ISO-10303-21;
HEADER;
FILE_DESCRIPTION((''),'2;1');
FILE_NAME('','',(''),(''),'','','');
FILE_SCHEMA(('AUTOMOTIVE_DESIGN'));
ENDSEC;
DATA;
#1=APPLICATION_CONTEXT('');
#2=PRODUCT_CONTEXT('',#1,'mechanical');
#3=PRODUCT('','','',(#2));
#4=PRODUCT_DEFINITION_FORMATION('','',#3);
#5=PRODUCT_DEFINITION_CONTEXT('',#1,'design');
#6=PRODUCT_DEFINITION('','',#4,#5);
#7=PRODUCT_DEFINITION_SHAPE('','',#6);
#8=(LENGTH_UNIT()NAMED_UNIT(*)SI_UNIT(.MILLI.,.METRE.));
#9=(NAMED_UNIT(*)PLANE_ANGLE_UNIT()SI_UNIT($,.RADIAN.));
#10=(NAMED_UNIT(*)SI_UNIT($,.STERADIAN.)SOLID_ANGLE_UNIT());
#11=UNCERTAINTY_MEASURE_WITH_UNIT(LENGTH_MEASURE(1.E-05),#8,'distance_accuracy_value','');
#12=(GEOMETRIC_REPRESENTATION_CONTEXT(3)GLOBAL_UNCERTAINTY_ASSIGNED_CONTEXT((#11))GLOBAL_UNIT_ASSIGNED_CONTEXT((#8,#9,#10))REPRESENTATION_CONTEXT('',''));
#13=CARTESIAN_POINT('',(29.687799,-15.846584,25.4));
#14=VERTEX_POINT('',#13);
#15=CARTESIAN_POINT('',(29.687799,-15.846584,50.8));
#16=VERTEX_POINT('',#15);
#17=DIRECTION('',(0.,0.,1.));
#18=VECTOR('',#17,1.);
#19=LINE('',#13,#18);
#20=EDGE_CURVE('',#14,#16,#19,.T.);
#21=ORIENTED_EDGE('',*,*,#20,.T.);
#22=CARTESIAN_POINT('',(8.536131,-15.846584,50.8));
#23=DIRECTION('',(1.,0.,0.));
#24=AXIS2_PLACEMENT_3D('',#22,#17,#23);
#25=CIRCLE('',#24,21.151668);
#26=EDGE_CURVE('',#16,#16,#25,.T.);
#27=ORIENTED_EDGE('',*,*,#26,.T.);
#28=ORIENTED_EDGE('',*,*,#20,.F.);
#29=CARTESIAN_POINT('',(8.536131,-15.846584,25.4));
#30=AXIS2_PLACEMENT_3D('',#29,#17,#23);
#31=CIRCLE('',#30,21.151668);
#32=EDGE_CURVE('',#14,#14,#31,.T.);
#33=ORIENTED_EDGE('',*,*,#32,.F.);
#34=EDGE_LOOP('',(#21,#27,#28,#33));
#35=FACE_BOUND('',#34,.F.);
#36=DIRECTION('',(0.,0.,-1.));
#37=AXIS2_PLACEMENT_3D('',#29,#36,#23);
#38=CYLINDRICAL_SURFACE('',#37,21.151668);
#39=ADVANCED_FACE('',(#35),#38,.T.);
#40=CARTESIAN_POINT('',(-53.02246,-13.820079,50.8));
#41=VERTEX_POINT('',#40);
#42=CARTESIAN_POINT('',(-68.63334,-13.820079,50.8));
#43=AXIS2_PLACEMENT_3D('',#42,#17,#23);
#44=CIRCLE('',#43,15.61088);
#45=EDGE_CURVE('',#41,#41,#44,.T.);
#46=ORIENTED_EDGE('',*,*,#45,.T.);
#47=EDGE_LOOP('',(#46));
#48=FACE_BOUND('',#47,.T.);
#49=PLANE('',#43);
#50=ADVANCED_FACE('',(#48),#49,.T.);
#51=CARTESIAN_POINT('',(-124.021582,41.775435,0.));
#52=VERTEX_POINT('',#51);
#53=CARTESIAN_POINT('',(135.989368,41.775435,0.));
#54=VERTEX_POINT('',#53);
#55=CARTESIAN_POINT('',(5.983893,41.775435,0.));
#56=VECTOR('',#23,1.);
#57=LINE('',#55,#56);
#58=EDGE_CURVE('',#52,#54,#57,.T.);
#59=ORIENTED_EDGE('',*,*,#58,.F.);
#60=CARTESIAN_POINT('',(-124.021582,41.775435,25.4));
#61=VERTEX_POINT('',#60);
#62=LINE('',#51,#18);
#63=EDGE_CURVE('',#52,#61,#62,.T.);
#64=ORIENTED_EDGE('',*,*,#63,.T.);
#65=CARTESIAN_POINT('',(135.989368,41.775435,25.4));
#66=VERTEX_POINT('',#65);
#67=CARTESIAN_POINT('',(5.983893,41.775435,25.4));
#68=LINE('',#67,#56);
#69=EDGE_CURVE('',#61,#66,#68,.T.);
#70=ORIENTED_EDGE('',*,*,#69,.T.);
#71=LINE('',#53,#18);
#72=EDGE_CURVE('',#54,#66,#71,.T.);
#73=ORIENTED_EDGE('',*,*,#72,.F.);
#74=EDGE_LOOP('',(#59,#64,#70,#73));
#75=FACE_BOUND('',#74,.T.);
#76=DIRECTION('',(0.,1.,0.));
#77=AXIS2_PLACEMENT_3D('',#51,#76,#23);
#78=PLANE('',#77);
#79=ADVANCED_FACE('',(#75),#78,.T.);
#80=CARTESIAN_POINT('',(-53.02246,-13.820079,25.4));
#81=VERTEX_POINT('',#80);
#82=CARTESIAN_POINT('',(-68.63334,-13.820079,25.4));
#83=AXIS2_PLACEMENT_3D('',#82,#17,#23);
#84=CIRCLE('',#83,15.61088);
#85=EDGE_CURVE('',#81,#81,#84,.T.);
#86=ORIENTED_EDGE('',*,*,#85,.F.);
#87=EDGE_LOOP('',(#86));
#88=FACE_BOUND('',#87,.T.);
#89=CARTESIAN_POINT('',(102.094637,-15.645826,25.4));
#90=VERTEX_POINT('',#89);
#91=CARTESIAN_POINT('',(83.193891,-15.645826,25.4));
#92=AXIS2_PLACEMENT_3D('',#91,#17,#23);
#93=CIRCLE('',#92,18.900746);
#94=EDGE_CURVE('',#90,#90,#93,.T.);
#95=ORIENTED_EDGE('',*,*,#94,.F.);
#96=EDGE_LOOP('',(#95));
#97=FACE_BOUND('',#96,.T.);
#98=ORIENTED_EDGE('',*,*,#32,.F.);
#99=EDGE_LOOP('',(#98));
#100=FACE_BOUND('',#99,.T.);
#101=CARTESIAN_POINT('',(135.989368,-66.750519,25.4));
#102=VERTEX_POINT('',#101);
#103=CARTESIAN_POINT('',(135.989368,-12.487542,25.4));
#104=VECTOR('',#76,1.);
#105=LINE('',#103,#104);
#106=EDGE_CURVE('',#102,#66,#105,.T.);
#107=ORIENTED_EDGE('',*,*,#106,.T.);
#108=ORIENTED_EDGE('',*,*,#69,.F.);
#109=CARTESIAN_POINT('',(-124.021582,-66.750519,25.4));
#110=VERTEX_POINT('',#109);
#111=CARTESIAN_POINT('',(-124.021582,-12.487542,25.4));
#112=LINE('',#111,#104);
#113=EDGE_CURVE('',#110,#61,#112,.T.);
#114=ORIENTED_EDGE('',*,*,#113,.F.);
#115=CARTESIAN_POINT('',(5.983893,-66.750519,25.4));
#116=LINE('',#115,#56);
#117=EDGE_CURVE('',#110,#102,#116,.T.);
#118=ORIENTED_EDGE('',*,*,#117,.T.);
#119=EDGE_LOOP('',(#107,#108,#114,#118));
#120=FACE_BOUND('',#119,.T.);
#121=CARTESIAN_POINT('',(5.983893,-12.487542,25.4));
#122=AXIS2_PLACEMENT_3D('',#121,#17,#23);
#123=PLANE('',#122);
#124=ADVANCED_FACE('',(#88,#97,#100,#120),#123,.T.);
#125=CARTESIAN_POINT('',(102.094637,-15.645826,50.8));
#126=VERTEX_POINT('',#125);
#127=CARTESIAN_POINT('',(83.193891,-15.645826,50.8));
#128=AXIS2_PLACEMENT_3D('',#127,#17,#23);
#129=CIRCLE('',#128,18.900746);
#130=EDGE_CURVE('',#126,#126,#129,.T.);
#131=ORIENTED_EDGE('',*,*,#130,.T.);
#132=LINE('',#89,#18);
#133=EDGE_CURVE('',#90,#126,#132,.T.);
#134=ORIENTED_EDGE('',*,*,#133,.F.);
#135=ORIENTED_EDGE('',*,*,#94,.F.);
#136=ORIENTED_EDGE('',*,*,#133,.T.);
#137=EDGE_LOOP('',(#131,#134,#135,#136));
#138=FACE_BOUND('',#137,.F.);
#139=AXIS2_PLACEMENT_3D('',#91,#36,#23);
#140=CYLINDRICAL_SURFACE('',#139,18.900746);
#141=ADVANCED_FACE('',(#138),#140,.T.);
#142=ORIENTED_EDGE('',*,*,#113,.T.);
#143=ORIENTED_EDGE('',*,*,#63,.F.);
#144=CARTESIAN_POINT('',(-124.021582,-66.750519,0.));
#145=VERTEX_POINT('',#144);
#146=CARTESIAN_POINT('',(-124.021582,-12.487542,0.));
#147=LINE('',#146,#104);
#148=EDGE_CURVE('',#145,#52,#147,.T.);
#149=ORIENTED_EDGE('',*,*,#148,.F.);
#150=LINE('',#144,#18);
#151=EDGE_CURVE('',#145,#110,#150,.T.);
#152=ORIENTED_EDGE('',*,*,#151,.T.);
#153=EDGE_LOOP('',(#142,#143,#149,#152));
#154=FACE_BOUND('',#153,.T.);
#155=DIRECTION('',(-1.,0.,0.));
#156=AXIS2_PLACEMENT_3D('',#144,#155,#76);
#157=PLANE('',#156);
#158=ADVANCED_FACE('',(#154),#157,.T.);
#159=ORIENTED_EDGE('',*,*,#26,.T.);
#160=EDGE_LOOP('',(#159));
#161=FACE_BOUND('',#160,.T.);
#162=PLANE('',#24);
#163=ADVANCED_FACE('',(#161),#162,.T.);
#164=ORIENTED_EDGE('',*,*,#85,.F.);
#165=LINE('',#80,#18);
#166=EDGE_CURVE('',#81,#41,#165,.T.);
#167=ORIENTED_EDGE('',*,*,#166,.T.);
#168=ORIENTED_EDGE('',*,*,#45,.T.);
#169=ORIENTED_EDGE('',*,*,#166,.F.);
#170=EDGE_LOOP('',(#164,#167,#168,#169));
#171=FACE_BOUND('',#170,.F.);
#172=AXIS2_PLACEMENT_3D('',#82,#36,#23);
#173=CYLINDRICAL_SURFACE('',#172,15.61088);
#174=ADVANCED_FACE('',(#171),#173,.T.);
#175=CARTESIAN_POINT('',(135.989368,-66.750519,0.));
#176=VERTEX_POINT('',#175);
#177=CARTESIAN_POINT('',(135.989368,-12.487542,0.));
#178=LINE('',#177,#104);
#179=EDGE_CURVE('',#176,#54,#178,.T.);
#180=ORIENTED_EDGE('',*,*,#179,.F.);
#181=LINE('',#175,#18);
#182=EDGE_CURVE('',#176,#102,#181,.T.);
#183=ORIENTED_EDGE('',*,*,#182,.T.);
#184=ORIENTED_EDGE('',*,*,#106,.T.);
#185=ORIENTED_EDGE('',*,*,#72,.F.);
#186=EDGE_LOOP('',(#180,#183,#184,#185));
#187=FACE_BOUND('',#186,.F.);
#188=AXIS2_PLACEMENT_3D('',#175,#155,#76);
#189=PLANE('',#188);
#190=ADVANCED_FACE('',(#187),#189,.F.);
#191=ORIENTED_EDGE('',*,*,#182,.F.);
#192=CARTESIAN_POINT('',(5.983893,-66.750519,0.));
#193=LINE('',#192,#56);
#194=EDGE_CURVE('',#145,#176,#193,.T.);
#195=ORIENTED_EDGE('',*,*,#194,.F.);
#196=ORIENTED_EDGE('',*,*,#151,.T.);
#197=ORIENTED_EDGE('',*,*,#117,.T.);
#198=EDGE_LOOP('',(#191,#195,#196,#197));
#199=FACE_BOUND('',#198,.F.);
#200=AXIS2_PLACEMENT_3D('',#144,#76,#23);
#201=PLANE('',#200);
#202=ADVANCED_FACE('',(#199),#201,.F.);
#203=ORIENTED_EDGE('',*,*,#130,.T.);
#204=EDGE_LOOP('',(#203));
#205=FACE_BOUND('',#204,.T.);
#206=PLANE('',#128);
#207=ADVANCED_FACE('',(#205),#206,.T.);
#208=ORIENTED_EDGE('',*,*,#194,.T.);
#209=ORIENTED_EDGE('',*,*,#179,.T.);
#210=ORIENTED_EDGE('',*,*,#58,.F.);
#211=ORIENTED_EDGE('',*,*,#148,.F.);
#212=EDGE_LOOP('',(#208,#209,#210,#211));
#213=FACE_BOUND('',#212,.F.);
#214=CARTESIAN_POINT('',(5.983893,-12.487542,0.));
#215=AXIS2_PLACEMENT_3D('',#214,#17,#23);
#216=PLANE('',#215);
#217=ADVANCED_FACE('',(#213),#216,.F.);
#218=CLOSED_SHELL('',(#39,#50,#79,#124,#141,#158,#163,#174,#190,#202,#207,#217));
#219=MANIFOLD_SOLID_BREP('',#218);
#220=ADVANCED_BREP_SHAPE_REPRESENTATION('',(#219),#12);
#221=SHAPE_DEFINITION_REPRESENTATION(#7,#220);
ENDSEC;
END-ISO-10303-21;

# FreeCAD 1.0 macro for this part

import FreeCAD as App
import Part
import Sketcher

V = App.Vector
Q = App.Units.Quantity

doc = App.newDocument("Part")
body = doc.addObject("PartDesign::Body", "Body")

# Sketch on XY plane
sketch1 = doc.addObject("Sketcher::SketchObject", "Sketch")
body.addObject(sketch1)
sketch1.AttachmentSupport = (doc.XY_Plane, [""])
sketch1.MapMode = "FlatFace"
sketch1.addGeometry([
    Part.LineSegment(V(-124.021582, 41.775435, 0), V(-124.021582, -66.750519, 0)),
    Part.LineSegment(V(-124.021582, -66.750519, 0), V(135.989368, -66.750519, 0)),
    Part.LineSegment(V(135.989368, -66.750519, 0), V(135.989368, 41.775435, 0)),
    Part.LineSegment(V(135.989368, 41.775435, 0), V(-124.021582, 41.775435, 0)),
], False)
sketch1.addConstraint([
    Sketcher.Constraint("Coincident", 0, 2, 1, 1),
    Sketcher.Constraint("Coincident", 1, 2, 2, 1),
    Sketcher.Constraint("Coincident", 2, 2, 3, 1),
    Sketcher.Constraint("Coincident", 3, 2, 0, 1),
    Sketcher.Constraint("Vertical", 0),
    Sketcher.Constraint("Horizontal", 1),
    Sketcher.Constraint("Vertical", 2),
    Sketcher.Constraint("Horizontal", 3),
    Sketcher.Constraint("DistanceX", 1, 1, 1, 2, 260.01095),
    Sketcher.Constraint("DistanceY", 0, 2, 0, 1, 108.525954),
    Sketcher.Constraint("DistanceX", 0, 2, -1, 1, 124.021582),
    Sketcher.Constraint("DistanceY", 0, 2, -1, 1, 66.750519),
])
pad1 = doc.addObject("PartDesign::Pad", "Pad")
body.addObject(pad1)
pad1.Profile = sketch1
pad1.Length = Q("1 in")

# Sketch on XY plane
sketch2 = doc.addObject("Sketcher::SketchObject", "Sketch001")
body.addObject(sketch2)
sketch2.AttachmentSupport = (doc.XY_Plane, [""])
sketch2.MapMode = "FlatFace"
sketch2.AttachmentOffset = App.Placement(V(0, 0, 1 * 25.4), App.Rotation())
sketch2.addGeometry([
    Part.Circle(V(-68.63334, -13.820079, 0), V(0, 0, 1), 15.61088),
    Part.Circle(V(8.536131, -15.846584, 0), V(0, 0, 1), 21.151668),
    Part.Circle(V(83.193891, -15.645826, 0), V(0, 0, 1), 18.900746),
], False)
sketch2.addConstraint([
    Sketcher.Constraint("Diameter", 0, 31.22176),
    Sketcher.Constraint("Diameter", 1, 42.303336),
    Sketcher.Constraint("Diameter", 2, 37.801492),
    Sketcher.Constraint("DistanceX", 0, 3, -1, 1, Q("2.7021 in")),
    Sketcher.Constraint("DistanceY", 0, 3, -1, 1, 13.820079),
    Sketcher.Constraint("DistanceX", -1, 1, 1, 3, 8.536131),
    Sketcher.Constraint("DistanceX", -1, 1, 2, 3, 83.193891),
    Sketcher.Constraint("DistanceY", 1, 3, 2, 3, 0.200758),
    Sketcher.Constraint("DistanceY", 1, 3, -1, 1, 15.846584),
])
pad2 = doc.addObject("PartDesign::Pad", "Pad001")
body.addObject(pad2)
pad2.Profile = sketch2
pad2.Length = Q("1 in")

doc.recompute()
